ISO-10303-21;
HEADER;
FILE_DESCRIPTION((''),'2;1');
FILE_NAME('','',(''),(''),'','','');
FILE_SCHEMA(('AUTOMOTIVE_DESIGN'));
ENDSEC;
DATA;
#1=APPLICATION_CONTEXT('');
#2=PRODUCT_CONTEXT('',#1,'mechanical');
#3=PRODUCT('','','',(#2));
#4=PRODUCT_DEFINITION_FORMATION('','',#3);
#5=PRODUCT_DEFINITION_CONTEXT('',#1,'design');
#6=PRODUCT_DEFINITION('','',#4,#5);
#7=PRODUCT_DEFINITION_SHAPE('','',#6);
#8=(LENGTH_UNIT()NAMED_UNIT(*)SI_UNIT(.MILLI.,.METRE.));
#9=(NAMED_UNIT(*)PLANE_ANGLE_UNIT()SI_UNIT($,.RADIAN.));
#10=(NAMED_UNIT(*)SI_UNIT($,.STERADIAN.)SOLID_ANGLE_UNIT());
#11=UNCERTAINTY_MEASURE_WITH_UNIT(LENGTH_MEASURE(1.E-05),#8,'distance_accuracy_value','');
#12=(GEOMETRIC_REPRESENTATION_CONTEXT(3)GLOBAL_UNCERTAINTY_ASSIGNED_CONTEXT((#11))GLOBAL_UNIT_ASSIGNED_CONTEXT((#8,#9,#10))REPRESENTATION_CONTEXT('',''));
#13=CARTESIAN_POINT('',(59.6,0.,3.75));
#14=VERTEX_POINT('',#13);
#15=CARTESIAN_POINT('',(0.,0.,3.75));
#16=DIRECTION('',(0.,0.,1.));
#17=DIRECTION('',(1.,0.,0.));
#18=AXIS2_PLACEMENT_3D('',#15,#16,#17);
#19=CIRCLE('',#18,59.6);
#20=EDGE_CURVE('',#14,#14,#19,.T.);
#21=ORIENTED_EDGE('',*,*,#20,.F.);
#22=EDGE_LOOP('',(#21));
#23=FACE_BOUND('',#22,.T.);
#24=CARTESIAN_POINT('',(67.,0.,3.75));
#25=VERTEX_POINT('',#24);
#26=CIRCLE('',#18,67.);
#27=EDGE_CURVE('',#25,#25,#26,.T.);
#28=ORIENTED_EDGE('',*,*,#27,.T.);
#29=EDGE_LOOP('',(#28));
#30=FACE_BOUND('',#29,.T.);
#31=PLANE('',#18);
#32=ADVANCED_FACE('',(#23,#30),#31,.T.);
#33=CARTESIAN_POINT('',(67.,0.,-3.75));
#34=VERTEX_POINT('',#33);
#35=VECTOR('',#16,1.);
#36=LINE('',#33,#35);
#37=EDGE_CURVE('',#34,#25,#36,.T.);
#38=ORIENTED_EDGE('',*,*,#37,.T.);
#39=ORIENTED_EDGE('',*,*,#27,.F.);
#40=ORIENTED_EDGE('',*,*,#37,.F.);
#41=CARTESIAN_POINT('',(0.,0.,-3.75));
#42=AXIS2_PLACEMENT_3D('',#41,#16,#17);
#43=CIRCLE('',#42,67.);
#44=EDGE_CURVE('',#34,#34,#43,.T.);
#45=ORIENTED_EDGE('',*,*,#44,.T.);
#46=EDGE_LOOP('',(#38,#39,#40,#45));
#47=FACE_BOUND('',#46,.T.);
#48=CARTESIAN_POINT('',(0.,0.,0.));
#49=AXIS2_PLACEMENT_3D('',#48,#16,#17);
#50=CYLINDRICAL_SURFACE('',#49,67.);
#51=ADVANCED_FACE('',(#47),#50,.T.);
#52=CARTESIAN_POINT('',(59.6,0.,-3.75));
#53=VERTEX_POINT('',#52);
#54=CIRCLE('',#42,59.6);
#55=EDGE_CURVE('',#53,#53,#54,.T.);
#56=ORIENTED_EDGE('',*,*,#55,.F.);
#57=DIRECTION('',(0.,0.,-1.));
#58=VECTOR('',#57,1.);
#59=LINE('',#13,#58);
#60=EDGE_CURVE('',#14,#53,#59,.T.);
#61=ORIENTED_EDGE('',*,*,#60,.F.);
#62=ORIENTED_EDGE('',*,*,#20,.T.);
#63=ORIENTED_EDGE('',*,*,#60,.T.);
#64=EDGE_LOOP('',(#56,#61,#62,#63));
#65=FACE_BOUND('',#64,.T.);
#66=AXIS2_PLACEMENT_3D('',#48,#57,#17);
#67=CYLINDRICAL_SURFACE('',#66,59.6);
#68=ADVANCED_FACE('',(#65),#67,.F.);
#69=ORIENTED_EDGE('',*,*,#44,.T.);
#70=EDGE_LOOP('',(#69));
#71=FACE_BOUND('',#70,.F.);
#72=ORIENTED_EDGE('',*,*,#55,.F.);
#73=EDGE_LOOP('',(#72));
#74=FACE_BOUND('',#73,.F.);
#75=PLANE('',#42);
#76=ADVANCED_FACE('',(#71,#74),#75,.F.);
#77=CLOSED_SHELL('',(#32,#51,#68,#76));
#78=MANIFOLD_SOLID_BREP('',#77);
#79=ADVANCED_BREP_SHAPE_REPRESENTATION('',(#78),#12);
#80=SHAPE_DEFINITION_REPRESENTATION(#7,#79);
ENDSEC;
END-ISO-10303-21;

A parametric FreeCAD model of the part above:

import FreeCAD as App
import Part
import Sketcher
Q = App.Units.Quantity

doc = App.newDocument("Part")
body = doc.addObject("PartDesign::Body", "Body")

# Sketch on XY plane
sketch1 = body.newObject("Sketcher::SketchObject", "Sketch")
sketch1.AttachmentSupport = (doc.getObject("XY_Plane"), [""])
sketch1.MapMode = "FlatFace"
sketch1.addGeometry([
    Part.Circle(App.Vector(0, 0, 0), App.Vector(0, 0, 1), 67),
    Part.Circle(App.Vector(0, 0, 0), App.Vector(0, 0, 1), 60),
], False)
sketch1.addConstraint([
    Sketcher.Constraint("Coincident", 0, 3, -1, 1),
    Sketcher.Constraint("Coincident", 1, 3, -1, 1),
    Sketcher.Constraint("Diameter", 0, Q("134 mm")),
    Sketcher.Constraint("Diameter", 1, Q("119.2 mm")),
])
pad1 = body.newObject("PartDesign::Pad", "Pad")
pad1.Profile = sketch1
pad1.Length = 7.5
pad1.Midplane = True

doc.recompute()
